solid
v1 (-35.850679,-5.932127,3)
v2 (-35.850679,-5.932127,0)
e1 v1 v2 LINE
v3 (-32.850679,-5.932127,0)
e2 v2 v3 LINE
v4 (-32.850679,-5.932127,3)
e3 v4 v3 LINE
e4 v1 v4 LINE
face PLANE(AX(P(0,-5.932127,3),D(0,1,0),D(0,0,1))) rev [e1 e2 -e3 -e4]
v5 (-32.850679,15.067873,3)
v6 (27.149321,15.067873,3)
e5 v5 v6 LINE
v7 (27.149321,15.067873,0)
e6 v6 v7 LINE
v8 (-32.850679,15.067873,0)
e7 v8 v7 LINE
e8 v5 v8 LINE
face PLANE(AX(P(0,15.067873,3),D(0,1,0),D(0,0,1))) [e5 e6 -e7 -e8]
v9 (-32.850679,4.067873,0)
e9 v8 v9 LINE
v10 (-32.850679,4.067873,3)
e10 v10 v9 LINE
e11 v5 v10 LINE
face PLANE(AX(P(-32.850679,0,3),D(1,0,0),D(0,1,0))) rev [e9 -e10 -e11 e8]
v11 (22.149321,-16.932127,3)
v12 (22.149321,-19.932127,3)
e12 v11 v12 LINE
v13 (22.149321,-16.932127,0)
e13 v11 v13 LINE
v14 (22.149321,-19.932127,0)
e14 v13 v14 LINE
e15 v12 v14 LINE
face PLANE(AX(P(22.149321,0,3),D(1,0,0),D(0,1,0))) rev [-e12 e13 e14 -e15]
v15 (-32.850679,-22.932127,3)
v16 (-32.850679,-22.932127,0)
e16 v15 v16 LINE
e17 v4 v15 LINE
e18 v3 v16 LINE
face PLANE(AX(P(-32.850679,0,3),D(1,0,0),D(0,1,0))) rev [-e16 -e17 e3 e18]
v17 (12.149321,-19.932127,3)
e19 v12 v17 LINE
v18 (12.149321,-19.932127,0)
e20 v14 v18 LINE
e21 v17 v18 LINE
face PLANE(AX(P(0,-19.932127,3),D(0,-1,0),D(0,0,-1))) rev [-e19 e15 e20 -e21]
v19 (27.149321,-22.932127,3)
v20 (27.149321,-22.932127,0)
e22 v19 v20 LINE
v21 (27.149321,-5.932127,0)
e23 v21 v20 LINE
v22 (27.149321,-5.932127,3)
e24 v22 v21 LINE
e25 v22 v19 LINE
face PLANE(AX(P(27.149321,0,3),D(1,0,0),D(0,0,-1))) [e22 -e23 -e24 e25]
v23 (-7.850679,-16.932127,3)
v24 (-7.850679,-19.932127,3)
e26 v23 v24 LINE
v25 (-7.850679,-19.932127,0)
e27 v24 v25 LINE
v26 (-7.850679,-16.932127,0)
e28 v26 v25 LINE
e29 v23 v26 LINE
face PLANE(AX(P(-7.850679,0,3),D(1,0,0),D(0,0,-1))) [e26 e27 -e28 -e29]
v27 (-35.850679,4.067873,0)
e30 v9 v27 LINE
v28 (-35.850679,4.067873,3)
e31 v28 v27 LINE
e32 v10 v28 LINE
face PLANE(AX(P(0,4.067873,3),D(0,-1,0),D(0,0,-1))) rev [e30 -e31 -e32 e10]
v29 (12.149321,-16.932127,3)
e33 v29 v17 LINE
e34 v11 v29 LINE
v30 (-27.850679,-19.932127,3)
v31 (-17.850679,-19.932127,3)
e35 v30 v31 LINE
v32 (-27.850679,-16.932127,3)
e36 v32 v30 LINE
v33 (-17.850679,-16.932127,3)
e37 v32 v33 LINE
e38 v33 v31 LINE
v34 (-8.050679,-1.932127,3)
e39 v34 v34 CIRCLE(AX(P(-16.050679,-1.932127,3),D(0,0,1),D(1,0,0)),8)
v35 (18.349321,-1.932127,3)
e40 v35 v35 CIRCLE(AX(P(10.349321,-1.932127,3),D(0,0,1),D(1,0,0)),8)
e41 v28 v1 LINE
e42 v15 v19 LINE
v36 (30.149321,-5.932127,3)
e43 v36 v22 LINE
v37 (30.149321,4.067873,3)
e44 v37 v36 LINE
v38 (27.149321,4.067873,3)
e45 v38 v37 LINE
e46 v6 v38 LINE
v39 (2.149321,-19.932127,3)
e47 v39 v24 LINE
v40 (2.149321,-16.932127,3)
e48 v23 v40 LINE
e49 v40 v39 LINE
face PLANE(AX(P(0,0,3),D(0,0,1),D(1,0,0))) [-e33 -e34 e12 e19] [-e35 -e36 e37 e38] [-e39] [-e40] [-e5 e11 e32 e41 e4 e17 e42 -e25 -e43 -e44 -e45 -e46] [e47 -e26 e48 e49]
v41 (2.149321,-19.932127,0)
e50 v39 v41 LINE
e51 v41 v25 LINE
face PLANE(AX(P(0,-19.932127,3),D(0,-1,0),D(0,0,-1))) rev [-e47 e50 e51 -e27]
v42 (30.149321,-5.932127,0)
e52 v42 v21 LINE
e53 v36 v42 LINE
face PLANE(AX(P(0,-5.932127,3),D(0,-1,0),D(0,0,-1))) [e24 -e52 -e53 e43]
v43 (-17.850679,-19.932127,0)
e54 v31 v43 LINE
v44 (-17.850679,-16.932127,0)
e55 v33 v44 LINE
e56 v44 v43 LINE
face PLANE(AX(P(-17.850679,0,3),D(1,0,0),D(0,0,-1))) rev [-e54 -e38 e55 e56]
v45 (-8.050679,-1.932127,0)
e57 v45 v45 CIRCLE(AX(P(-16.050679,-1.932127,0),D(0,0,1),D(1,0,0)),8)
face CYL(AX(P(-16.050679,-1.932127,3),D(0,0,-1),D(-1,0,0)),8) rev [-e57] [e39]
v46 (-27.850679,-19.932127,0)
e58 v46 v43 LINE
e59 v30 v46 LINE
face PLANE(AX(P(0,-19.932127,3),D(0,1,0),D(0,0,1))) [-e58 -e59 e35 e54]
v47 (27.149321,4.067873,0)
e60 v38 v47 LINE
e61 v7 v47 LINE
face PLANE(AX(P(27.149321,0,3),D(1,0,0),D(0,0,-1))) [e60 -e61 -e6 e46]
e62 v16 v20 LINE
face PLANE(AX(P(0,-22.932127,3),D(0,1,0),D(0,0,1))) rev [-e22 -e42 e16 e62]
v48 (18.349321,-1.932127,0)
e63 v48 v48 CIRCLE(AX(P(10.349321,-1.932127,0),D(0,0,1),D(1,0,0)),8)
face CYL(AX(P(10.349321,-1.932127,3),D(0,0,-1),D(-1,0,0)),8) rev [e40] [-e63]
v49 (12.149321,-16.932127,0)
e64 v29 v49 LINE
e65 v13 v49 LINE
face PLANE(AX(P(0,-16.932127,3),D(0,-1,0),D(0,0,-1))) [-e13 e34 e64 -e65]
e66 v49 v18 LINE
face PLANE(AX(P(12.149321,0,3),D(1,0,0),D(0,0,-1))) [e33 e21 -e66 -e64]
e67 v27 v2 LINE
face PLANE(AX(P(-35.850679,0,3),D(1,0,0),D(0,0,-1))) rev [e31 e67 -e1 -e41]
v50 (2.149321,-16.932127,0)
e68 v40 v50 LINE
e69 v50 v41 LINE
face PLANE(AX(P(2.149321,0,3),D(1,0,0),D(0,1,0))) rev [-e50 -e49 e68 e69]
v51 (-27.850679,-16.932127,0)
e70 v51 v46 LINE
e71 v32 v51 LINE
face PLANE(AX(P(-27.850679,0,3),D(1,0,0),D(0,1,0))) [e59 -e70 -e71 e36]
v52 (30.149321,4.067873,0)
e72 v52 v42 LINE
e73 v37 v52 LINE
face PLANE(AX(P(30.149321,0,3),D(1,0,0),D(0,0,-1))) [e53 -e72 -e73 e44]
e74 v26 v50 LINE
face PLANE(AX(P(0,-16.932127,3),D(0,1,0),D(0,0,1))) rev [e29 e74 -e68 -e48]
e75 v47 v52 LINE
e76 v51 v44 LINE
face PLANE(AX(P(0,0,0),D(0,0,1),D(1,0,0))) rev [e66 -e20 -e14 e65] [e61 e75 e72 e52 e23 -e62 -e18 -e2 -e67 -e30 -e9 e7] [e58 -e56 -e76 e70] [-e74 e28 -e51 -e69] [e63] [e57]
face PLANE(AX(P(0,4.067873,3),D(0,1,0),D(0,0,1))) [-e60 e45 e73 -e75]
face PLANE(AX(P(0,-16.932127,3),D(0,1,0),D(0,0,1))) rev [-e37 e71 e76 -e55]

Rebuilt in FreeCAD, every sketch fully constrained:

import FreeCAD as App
import Part
import Sketcher

V = App.Vector

doc = App.newDocument("Part")
params = doc.addObject("Spreadsheet::Sheet", "Params")
for row, (alias, value) in enumerate([
    ("sketch1_diameter", "16 mm"),
    ("sketch1_width", "60 mm"),
    ("sketch1_width2", "3 mm"),
    ("sketch1_width3", "10 mm"),
    ("sketch1_height", "17 mm"),
    ("pad1_length", "3 mm"),
], start=1):
    params.set(f"A{row}", alias)
    params.set(f"B{row}", "=" + value)
    params.setAlias(f"B{row}", alias)

body = doc.addObject("PartDesign::Body", "Body")

# Sketch on XY plane
sketch1 = body.newObject("Sketcher::SketchObject", "Sketch")
sketch1.AttachmentSupport = (doc.getObject("XY_Plane"), [""])
sketch1.MapMode = "FlatFace"
sketch1.addGeometry([
    Part.LineSegment(V(-32.9, -5.9, 0), V(-32.9, -22.9, 0)),  # 0
    Part.LineSegment(V(-32.9, -22.9, 0), V(27.1, -22.9, 0)),  # 1
    Part.LineSegment(V(27.1, -22.9, 0), V(27.1, -5.9, 0)),  # 2
    Part.LineSegment(V(27.1, -5.9, 0), V(30.1, -5.9, 0)),  # 3
    Part.LineSegment(V(30.1, -5.9, 0), V(30.1, 4.1, 0)),  # 4
    Part.LineSegment(V(30.1, 4.1, 0), V(27.1, 4.1, 0)),  # 5
    Part.LineSegment(V(27.1, 4.1, 0), V(27.1, 15.1, 0)),  # 6
    Part.LineSegment(V(27.1, 15.1, 0), V(-32.9, 15.1, 0)),  # 7
    Part.LineSegment(V(-32.9, 15.1, 0), V(-32.9, 4.1, 0)),  # 8
    Part.LineSegment(V(-32.9, 4.1, 0), V(-35.9, 4.1, 0)),  # 9
    Part.LineSegment(V(-35.9, 4.1, 0), V(-35.9, -5.9, 0)),  # 10
    Part.LineSegment(V(-35.9, -5.9, 0), V(-32.9, -5.9, 0)),  # 11
    Part.LineSegment(V(-17.9, -19.9, 0), V(-27.9, -19.9, 0)),  # 12
    Part.LineSegment(V(-27.9, -19.9, 0), V(-27.9, -16.9, 0)),  # 13
    Part.LineSegment(V(-27.9, -16.9, 0), V(-17.9, -16.9, 0)),  # 14
    Part.LineSegment(V(-17.9, -16.9, 0), V(-17.9, -19.9, 0)),  # 15
    Part.LineSegment(V(2.1, -19.9, 0), V(-7.9, -19.9, 0)),  # 16
    Part.LineSegment(V(-7.9, -19.9, 0), V(-7.9, -16.9, 0)),  # 17
    Part.LineSegment(V(-7.9, -16.9, 0), V(2.1, -16.9, 0)),  # 18
    Part.LineSegment(V(2.1, -16.9, 0), V(2.1, -19.9, 0)),  # 19
    Part.LineSegment(V(22.1, -19.9, 0), V(12.1, -19.9, 0)),  # 20
    Part.LineSegment(V(12.1, -19.9, 0), V(12.1, -16.9, 0)),  # 21
    Part.LineSegment(V(12.1, -16.9, 0), V(22.1, -16.9, 0)),  # 22
    Part.LineSegment(V(22.1, -16.9, 0), V(22.1, -19.9, 0)),  # 23
    Part.Circle(V(-16.1, -1.9, 0), V(0, 0, 1), 8),  # 24
    Part.Circle(V(10.3, -1.9, 0), V(0, 0, 1), 8),  # 25
], False)
sketch1.addConstraint([
    Sketcher.Constraint("Coincident", 0, 2, 1, 1),
    Sketcher.Constraint("Coincident", 1, 2, 2, 1),
    Sketcher.Constraint("Coincident", 2, 2, 3, 1),
    Sketcher.Constraint("Coincident", 3, 2, 4, 1),
    Sketcher.Constraint("Coincident", 4, 2, 5, 1),
    Sketcher.Constraint("Coincident", 5, 2, 6, 1),
    Sketcher.Constraint("Coincident", 6, 2, 7, 1),
    Sketcher.Constraint("Coincident", 7, 2, 8, 1),
    Sketcher.Constraint("Coincident", 8, 2, 9, 1),
    Sketcher.Constraint("Coincident", 9, 2, 10, 1),
    Sketcher.Constraint("Coincident", 10, 2, 11, 1),
    Sketcher.Constraint("Coincident", 11, 2, 0, 1),
    Sketcher.Constraint("Coincident", 12, 2, 13, 1),
    Sketcher.Constraint("Coincident", 13, 2, 14, 1),
    Sketcher.Constraint("Coincident", 14, 2, 15, 1),
    Sketcher.Constraint("Coincident", 15, 2, 12, 1),
    Sketcher.Constraint("Coincident", 16, 2, 17, 1),
    Sketcher.Constraint("Coincident", 17, 2, 18, 1),
    Sketcher.Constraint("Coincident", 18, 2, 19, 1),
    Sketcher.Constraint("Coincident", 19, 2, 16, 1),
    Sketcher.Constraint("Coincident", 20, 2, 21, 1),
    Sketcher.Constraint("Coincident", 21, 2, 22, 1),
    Sketcher.Constraint("Coincident", 22, 2, 23, 1),
    Sketcher.Constraint("Coincident", 23, 2, 20, 1),
    Sketcher.Constraint("Vertical", 0),
    Sketcher.Constraint("Horizontal", 1),
    Sketcher.Constraint("Vertical", 2),
    Sketcher.Constraint("Horizontal", 3),
    Sketcher.Constraint("Vertical", 4),
    Sketcher.Constraint("Horizontal", 5),
    Sketcher.Constraint("Vertical", 6),
    Sketcher.Constraint("Horizontal", 7),
    Sketcher.Constraint("Vertical", 8),
    Sketcher.Constraint("Horizontal", 9),
    Sketcher.Constraint("Vertical", 10),
    Sketcher.Constraint("Horizontal", 11),
    Sketcher.Constraint("Horizontal", 12),
    Sketcher.Constraint("Vertical", 13),
    Sketcher.Constraint("Horizontal", 14),
    Sketcher.Constraint("Vertical", 15),
    Sketcher.Constraint("Horizontal", 16),
    Sketcher.Constraint("Vertical", 17),
    Sketcher.Constraint("Horizontal", 18),
    Sketcher.Constraint("Vertical", 19),
    Sketcher.Constraint("Horizontal", 20),
    Sketcher.Constraint("Vertical", 21),
    Sketcher.Constraint("Horizontal", 22),
    Sketcher.Constraint("Vertical", 23),
    Sketcher.Constraint("Equal", 24, 25),
    Sketcher.Constraint("Horizontal", 24, 3, 25, 3),
    Sketcher.Constraint("Horizontal", 5, 2, 8, 2),
    Sketcher.Constraint("Horizontal", 3, 2, 10, 2),
    Sketcher.Constraint("Horizontal", 15, 2, 16, 2),
    Sketcher.Constraint("Horizontal", 14, 2, 17, 2),
    Sketcher.Constraint("Horizontal", 19, 2, 20, 2),
    Sketcher.Constraint("Horizontal", 18, 2, 21, 2),
    Sketcher.Constraint("Vertical", 2, 2, 5, 2),
    Sketcher.Constraint("Vertical", 0, 2, 7, 2),
    Sketcher.Constraint("Equal", 5, 9),
    Sketcher.Constraint("Equal", 14, 16),
    Sketcher.Constraint("Equal", 18, 20),
    Sketcher.Constraint("Equal", 22, 4),
    Sketcher.Constraint("Equal", 11, 13),
    Sketcher.Constraint("Diameter", 24, 16.0),
    Sketcher.Constraint("DistanceX", 1, 1, 1, 2, 60.0),
    Sketcher.Constraint("DistanceX", 3, 1, 3, 2, 3.0),
    Sketcher.Constraint("DistanceX", 12, 2, 12, 1, 10.0),
    Sketcher.Constraint("DistanceY", 0, 2, 0, 1, 17.0),
    Sketcher.Constraint("DistanceY", 6, 1, 6, 2, 11.0),
    Sketcher.Constraint("DistanceY", 0, 2, 24, 3, 21.0),
    Sketcher.Constraint("DistanceX", 0, 2, 12, 2, 5.0),
    Sketcher.Constraint("DistanceY", 0, 2, 12, 2, 3.0),
    Sketcher.Constraint("DistanceX", 15, 2, 16, 2, 10.0),
    Sketcher.Constraint("DistanceX", 19, 2, 20, 2, 10.0),
    Sketcher.Constraint("DistanceX", 24, 3, 25, 3, 26.4),
    Sketcher.Constraint("DistanceX", 0, 2, 24, 3, 16.8),
    Sketcher.Constraint("DistanceX", 24, 3, -1, 1, 16.050679),
    Sketcher.Constraint("DistanceY", 24, 3, -1, 1, 1.932127),
])
sketch1.setExpression("Constraints[63]", "Params.sketch1_diameter")
sketch1.setExpression("Constraints[64]", "Params.sketch1_width")
sketch1.setExpression("Constraints[65]", "Params.sketch1_width2")
sketch1.setExpression("Constraints[66]", "Params.sketch1_width3")
sketch1.setExpression("Constraints[67]", "Params.sketch1_height")
pad1 = body.newObject("PartDesign::Pad", "Pad")
pad1.Profile = sketch1
pad1.setExpression("Length", "Params.pad1_length")

doc.recompute()
